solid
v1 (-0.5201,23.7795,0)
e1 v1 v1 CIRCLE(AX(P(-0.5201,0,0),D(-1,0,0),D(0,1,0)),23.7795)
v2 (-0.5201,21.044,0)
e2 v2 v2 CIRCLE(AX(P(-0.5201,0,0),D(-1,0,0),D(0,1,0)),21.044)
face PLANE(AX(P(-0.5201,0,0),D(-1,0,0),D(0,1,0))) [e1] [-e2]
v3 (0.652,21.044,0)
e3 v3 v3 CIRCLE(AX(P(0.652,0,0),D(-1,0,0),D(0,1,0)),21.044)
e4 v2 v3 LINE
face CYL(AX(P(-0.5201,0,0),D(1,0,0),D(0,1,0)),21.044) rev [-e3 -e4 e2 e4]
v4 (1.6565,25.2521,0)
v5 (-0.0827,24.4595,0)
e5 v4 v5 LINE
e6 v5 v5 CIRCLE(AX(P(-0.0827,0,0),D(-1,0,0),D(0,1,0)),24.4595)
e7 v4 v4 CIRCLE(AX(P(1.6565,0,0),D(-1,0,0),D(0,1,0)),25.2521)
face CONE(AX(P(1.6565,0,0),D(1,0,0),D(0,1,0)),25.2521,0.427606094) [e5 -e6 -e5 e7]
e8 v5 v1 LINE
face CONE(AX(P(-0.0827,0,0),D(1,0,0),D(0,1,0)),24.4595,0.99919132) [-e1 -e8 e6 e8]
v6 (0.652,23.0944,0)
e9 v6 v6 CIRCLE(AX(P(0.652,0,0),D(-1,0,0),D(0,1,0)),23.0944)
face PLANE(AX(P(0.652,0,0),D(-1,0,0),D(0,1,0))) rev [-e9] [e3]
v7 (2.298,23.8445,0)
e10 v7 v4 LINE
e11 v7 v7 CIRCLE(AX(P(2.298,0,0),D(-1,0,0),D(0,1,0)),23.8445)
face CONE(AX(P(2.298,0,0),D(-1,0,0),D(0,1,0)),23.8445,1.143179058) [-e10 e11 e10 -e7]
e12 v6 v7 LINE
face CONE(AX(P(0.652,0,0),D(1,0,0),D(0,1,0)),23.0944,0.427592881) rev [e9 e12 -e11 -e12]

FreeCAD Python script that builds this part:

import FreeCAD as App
import Part
import Sketcher
from FreeCAD import Vector
Q = App.Units.Quantity


def add_polygon(sketch, points):
    """Adds a closed chain of lines whose ends are joined by coincident constraints."""
    first, n = sketch.GeometryCount, len(points)
    for a, b in zip(points, points[1:] + points[:1]):
        sketch.addGeometry(Part.LineSegment(App.Vector(*a, 0), App.Vector(*b, 0)), False)
    for i in range(n):
        sketch.addConstraint(Sketcher.Constraint("Coincident", first + i, 2, first + (i + 1) % n, 1))

doc = App.newDocument("Part")
body = doc.addObject("PartDesign::Body", "Body")

# Sketch on XY plane
sketch1 = doc.addObject("Sketcher::SketchObject", "Sketch")
body.addObject(sketch1)
sketch1.AttachmentSupport = (doc.XY_Plane, [""])
sketch1.MapMode = "FlatFace"
add_polygon(sketch1, [(-0.5, 23.8), (-0.5, 21), (0.7, 21), (0.7, 23.1), (2.3, 23.8), (1.7, 25.3), (-0.1, 24.5)])  # lines 0-6
sketch1.addConstraint(Sketcher.Constraint("Vertical", 0))
sketch1.addConstraint(Sketcher.Constraint("Horizontal", 1))
sketch1.addConstraint(Sketcher.Constraint("Vertical", 2))
sketch1.addConstraint(Sketcher.Constraint("Perpendicular", 3, 4))
sketch1.addConstraint(Sketcher.Constraint("Perpendicular", 4, 5))
sketch1.addConstraint(Sketcher.Constraint("Angle", 3, Q("24.4993 deg")))
sketch1.addConstraint(Sketcher.Constraint("Angle", 6, Q("-122.7506 deg")))
sketch1.addConstraint(Sketcher.Constraint("DistanceX", 1, 1, 1, 2, 1.172))
sketch1.addConstraint(Sketcher.Constraint("DistanceX", 0, 2, -1, 1, 0.52))
sketch1.addConstraint(Sketcher.Constraint("DistanceY", 2, 2, 3, 2, 0.75))
sketch1.addConstraint(Sketcher.Constraint("DistanceY", 6, 2, 5, 2, 0.68))
sketch1.addConstraint(Sketcher.Constraint("Distance", 4, 1.547))
sketch1.addConstraint(Sketcher.Constraint("DistanceY", 0, 2, 0, 1, 2.7355))
sketch1.addConstraint(Sketcher.Constraint("DistanceY", -1, 1, 0, 2, 21.044))
revolution = doc.addObject("PartDesign::Revolution", "Revolution")
body.addObject(revolution)
revolution.Profile = sketch1
revolution.ReferenceAxis = (sketch1, ["H_Axis"])
revolution.Angle = 360

doc.recompute()
